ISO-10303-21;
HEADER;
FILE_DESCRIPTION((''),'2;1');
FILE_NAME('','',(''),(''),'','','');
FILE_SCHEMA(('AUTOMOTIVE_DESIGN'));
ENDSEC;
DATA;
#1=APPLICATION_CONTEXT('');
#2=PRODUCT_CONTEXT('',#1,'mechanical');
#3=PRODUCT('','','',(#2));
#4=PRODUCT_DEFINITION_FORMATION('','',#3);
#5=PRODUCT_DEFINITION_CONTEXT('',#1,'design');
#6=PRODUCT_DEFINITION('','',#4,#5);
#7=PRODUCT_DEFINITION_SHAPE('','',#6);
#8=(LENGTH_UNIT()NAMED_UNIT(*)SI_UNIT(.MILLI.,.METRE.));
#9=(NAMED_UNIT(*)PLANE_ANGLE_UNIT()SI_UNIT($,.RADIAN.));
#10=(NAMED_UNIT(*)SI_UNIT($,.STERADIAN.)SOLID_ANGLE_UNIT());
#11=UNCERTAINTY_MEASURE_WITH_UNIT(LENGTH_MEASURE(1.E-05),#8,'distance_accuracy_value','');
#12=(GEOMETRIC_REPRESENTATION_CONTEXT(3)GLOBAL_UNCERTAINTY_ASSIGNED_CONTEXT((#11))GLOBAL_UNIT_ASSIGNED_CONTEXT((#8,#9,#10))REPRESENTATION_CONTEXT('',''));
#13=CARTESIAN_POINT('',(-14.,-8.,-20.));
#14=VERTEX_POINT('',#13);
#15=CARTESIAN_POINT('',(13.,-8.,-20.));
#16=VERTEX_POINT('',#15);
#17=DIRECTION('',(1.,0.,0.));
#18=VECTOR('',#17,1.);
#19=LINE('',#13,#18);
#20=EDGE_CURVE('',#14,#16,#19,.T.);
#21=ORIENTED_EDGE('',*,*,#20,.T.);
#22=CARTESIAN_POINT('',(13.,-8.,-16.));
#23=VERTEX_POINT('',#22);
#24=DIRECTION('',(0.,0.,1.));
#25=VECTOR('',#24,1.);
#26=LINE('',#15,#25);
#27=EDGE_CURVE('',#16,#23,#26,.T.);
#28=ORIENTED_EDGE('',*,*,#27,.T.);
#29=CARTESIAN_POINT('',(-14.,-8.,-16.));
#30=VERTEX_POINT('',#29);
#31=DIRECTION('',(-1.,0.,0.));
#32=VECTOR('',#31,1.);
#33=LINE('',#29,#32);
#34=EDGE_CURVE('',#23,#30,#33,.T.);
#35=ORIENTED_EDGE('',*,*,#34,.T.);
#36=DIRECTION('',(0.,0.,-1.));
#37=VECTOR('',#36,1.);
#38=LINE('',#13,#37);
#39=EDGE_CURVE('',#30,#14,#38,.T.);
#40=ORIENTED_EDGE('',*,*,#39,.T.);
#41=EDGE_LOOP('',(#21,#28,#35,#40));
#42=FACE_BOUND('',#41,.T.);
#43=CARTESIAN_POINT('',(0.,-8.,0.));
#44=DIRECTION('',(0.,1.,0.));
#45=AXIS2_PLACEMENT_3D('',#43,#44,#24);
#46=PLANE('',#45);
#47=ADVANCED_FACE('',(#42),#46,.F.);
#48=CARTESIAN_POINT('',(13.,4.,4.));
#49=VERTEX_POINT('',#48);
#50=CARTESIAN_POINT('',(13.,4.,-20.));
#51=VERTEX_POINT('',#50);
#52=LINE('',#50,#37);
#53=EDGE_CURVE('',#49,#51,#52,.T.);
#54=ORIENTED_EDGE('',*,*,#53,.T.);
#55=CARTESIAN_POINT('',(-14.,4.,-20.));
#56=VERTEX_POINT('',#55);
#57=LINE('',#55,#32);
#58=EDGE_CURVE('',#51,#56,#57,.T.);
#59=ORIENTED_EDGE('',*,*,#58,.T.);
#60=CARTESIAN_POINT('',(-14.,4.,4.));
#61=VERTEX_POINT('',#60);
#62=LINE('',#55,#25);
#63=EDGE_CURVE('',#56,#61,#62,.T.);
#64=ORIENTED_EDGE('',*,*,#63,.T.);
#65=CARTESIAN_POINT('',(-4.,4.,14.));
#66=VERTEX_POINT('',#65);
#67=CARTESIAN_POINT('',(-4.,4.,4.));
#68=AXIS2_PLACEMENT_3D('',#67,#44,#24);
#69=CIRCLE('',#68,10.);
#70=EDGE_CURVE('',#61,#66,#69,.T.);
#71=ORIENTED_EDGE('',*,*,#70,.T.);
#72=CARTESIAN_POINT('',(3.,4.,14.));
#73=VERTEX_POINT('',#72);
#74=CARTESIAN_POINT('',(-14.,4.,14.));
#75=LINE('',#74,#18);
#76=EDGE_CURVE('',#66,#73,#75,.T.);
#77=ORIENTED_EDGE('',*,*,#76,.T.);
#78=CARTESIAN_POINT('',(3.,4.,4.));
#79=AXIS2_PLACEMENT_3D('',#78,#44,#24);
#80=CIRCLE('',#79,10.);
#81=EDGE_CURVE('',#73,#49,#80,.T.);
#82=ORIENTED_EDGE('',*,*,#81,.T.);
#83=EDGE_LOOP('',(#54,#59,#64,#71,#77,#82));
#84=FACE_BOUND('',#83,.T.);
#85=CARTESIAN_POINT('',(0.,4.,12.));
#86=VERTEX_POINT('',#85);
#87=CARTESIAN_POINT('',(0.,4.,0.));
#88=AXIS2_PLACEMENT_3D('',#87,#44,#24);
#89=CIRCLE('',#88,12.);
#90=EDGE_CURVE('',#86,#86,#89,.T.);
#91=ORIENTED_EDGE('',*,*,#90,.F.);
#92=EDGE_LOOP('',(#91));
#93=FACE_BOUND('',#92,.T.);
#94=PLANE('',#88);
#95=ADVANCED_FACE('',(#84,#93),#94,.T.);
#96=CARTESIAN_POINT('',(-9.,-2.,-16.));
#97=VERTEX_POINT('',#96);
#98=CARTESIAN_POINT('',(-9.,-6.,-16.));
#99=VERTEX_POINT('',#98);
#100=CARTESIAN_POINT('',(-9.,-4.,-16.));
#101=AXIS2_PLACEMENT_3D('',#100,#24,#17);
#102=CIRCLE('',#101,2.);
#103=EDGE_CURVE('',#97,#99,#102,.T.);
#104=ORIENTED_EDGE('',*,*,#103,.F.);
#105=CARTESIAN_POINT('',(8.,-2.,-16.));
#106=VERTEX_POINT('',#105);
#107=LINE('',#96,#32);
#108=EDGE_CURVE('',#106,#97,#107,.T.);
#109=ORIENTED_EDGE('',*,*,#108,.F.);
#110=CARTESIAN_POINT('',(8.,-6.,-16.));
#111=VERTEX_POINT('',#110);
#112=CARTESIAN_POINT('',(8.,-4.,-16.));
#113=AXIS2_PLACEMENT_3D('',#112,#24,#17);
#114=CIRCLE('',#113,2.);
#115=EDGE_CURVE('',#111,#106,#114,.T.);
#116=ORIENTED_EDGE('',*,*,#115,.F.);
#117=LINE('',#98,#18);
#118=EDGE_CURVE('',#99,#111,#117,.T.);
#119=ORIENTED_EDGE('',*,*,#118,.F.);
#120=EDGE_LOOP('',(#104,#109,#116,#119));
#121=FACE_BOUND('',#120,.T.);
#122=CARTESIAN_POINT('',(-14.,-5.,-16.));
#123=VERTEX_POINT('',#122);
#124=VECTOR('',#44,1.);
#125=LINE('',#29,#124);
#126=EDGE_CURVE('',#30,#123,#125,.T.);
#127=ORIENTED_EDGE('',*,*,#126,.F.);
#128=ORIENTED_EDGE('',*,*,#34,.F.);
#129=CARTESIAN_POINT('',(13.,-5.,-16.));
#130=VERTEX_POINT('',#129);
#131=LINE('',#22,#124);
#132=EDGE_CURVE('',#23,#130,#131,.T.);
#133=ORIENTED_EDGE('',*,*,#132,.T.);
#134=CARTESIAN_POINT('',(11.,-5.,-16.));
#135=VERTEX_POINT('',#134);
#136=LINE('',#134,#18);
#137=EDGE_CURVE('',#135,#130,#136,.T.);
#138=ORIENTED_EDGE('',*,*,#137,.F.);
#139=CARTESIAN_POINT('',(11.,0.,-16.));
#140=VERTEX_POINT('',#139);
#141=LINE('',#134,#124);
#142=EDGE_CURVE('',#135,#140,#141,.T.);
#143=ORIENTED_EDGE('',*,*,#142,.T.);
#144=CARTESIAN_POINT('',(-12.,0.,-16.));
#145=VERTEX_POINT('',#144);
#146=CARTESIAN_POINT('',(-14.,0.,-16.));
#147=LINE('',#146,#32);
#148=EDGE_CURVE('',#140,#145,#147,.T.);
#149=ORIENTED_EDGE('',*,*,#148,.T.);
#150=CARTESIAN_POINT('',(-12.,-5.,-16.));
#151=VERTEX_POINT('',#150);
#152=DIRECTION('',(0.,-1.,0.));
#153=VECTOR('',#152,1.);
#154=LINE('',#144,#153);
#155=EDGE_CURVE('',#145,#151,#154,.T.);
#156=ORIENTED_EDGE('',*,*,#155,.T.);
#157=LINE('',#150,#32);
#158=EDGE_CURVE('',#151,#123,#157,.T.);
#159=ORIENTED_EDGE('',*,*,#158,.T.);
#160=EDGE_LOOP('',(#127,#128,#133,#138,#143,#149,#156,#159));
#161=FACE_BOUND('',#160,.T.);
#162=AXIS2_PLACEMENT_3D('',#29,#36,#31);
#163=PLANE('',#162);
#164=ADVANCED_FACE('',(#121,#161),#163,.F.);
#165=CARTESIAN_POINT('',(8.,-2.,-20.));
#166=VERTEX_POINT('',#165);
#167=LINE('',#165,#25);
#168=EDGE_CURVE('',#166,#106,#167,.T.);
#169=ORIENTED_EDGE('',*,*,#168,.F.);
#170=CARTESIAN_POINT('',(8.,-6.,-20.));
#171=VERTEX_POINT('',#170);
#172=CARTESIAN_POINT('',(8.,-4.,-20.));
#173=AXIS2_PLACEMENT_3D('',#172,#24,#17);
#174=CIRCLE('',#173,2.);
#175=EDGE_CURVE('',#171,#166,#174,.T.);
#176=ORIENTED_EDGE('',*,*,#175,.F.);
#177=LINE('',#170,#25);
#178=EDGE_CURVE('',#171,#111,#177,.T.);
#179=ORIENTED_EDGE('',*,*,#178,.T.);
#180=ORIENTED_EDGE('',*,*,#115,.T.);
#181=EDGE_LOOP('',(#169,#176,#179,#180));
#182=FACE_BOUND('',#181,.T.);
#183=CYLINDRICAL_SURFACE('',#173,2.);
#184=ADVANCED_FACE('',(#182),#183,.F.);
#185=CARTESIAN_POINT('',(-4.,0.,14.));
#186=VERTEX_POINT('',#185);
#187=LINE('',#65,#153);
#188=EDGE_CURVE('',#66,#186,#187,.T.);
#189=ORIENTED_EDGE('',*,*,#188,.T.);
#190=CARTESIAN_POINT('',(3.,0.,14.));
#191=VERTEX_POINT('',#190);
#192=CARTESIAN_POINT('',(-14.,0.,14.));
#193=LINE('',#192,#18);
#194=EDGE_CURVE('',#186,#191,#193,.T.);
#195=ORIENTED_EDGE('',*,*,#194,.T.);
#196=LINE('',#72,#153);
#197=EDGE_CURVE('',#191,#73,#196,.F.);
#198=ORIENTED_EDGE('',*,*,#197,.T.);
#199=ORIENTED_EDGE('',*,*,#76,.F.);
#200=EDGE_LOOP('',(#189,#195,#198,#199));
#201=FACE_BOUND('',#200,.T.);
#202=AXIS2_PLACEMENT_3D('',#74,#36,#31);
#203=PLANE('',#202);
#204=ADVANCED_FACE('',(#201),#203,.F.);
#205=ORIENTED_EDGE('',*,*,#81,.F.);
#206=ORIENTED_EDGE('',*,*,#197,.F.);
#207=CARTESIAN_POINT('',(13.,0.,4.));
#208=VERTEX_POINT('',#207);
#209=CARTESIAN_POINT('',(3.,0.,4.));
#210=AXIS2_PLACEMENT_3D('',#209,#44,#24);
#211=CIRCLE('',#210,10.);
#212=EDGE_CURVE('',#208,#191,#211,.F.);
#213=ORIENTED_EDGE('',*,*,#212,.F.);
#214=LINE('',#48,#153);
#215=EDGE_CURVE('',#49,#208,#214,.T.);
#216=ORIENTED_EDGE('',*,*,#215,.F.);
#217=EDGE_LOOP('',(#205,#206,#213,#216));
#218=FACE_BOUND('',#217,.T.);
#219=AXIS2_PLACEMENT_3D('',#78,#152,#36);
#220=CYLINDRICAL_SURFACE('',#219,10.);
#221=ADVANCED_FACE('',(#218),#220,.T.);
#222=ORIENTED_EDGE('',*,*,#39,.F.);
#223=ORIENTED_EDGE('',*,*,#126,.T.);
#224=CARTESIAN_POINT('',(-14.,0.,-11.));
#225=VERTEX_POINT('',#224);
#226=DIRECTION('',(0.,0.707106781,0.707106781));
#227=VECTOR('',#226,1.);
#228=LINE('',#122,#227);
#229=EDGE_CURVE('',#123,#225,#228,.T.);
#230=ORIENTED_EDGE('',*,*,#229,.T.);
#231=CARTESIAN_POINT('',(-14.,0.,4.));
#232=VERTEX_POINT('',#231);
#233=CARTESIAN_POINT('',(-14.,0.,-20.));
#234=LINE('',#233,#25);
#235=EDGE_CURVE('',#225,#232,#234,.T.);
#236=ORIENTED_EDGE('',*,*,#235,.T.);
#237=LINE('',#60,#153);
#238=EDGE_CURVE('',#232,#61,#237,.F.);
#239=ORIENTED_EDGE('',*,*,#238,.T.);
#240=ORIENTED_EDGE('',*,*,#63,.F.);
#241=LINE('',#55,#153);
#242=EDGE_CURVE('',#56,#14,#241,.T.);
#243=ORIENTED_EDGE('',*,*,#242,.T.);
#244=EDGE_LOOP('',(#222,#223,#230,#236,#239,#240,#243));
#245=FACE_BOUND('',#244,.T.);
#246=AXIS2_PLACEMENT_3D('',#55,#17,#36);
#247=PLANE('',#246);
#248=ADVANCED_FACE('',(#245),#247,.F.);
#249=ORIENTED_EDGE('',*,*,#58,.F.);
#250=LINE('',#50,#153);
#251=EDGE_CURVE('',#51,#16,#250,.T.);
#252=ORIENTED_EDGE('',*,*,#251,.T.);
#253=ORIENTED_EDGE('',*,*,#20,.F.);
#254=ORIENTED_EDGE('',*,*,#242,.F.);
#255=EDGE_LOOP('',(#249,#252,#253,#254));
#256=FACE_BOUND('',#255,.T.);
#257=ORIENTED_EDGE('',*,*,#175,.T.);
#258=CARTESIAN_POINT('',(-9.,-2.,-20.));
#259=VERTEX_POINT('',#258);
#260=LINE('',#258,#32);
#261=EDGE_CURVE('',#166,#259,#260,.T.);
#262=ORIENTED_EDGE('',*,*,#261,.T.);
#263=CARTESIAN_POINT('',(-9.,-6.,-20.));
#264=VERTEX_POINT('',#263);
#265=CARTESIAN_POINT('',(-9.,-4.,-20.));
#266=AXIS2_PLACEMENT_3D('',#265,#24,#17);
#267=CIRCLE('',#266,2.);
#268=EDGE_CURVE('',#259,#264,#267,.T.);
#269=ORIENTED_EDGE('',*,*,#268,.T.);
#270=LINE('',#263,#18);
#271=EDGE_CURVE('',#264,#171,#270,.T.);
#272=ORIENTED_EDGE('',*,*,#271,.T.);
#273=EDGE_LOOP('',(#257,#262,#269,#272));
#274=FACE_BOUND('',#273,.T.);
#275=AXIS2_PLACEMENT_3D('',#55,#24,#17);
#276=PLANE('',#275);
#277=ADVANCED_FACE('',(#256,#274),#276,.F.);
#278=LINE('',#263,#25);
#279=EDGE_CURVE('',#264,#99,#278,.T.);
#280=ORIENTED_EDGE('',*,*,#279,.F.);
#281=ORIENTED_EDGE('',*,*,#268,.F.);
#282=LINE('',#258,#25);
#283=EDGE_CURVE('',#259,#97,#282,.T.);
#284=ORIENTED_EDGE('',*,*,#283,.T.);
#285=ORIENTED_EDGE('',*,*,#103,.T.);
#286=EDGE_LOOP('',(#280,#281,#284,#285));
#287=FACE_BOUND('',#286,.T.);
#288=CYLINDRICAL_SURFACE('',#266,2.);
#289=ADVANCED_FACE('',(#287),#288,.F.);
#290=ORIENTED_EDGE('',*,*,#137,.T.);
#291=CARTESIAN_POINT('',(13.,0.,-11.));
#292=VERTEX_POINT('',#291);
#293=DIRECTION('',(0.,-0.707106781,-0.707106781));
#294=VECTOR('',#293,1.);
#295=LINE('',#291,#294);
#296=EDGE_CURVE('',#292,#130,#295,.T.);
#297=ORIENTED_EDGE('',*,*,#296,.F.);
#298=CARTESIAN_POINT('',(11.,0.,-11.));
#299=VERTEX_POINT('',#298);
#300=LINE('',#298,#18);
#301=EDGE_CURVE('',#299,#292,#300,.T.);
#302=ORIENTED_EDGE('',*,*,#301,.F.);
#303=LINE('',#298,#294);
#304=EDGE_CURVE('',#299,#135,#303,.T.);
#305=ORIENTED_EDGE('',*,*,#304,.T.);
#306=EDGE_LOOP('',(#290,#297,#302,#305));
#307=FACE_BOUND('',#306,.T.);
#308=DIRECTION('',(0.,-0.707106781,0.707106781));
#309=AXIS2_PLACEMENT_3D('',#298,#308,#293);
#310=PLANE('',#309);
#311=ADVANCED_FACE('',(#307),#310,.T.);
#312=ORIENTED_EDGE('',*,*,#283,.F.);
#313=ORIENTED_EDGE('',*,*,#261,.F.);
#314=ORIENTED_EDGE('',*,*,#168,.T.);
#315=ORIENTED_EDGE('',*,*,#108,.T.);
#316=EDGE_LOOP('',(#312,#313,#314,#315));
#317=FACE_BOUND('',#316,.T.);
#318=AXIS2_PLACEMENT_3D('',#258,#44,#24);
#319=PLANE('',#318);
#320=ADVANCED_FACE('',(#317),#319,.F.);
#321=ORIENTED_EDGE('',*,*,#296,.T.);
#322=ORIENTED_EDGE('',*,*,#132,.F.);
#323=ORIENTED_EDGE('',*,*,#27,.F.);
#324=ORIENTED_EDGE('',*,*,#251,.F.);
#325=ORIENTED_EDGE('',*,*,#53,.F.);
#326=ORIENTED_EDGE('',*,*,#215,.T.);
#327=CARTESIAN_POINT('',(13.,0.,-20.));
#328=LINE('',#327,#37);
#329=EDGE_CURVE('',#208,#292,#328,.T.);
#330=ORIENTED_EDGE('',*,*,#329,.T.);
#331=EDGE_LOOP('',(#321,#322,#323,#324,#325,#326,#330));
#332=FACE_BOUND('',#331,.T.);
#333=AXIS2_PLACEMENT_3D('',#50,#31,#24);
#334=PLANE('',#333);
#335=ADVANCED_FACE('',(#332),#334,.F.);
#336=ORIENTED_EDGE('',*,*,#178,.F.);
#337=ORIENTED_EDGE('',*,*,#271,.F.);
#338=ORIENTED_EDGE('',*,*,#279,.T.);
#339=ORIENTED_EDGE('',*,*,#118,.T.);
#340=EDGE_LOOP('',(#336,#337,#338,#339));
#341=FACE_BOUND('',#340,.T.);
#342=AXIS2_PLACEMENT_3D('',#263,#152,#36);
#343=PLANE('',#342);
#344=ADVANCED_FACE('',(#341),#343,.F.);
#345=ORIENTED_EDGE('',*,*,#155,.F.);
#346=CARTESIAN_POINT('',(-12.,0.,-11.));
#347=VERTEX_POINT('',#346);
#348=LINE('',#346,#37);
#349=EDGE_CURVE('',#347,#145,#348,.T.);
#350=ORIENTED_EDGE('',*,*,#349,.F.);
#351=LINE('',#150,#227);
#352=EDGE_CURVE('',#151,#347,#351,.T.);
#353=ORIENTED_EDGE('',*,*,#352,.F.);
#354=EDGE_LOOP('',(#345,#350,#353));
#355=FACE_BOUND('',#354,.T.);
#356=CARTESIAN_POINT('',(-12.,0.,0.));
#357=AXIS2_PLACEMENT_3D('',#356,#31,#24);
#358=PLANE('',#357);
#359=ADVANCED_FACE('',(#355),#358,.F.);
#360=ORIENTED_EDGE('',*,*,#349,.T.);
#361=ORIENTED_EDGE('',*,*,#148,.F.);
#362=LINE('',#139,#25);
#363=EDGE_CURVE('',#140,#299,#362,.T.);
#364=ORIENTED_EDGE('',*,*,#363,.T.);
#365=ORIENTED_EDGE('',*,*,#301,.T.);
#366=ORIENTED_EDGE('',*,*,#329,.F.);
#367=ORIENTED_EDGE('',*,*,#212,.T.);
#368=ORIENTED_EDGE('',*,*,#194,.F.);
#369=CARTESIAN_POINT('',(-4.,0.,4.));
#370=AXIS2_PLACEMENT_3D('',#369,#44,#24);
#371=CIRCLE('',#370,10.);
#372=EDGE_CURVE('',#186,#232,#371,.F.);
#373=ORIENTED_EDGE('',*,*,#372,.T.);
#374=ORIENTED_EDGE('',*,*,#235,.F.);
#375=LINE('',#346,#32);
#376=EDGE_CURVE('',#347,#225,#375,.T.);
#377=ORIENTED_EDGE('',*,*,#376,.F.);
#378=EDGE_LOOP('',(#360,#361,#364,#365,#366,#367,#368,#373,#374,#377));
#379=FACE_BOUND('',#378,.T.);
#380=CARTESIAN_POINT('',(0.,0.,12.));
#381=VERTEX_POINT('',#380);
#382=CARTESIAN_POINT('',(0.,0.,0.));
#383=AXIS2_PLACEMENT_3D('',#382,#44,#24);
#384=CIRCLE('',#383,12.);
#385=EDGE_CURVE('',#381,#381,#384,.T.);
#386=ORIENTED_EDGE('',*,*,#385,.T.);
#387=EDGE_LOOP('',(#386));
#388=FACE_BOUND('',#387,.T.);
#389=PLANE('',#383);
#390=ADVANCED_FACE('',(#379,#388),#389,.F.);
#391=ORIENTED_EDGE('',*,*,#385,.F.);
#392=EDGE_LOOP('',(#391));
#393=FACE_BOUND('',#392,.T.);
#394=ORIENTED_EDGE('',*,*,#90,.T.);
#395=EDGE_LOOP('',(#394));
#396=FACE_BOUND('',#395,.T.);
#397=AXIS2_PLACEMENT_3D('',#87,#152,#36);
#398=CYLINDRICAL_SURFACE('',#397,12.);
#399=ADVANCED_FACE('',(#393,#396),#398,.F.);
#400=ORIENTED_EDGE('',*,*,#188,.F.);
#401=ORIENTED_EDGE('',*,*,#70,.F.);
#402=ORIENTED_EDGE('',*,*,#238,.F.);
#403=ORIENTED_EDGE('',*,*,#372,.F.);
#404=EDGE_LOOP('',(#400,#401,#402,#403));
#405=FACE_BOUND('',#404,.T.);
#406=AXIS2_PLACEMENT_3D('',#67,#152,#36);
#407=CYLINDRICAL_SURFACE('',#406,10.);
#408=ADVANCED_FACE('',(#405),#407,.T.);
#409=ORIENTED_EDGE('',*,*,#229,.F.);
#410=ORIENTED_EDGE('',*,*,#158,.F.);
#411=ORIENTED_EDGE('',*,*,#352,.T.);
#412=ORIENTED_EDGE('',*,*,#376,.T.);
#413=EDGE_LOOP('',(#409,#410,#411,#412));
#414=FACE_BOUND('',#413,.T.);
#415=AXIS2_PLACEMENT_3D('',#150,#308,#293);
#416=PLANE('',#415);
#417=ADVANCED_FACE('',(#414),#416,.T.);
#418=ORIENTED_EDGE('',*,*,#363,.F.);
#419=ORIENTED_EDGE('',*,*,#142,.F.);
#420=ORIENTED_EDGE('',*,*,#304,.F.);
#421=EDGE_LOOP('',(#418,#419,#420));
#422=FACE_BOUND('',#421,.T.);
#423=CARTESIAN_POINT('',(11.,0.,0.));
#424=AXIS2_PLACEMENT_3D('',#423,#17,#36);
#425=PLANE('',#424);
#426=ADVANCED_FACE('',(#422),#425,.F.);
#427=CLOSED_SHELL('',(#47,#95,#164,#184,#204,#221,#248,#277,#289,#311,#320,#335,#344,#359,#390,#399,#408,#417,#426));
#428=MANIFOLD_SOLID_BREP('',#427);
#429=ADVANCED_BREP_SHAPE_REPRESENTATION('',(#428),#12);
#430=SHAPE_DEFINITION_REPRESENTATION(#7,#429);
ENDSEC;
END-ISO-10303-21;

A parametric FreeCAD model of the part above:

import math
import FreeCAD as App
import Part
import Sketcher

V = App.Vector


def edges_at(feature, points):
    """Names of the edges that pass closest to the given points."""
    edges = feature.Shape.Edges
    near = lambda p: min(range(len(edges)), key=lambda i: edges[i].distToShape(Part.Vertex(*p))[0])
    return sorted({f"Edge{near(p) + 1}" for p in points})

doc = App.newDocument("Part")
body = doc.addObject("PartDesign::Body", "Body")

# Sketch on XZ plane
sketch1 = body.newObject("Sketcher::SketchObject", "Sketch")
sketch1.AttachmentSupport = (doc.getObject("XZ_Plane"), [""])
sketch1.MapMode = "FlatFace"
sketch1.addGeometry([
    Part.LineSegment(V(-14, -20, 0), V(-14, 14, 0)),  # 0
    Part.LineSegment(V(-14, 14, 0), V(13, 14, 0)),  # 1
    Part.LineSegment(V(13, 14, 0), V(13, -20, 0)),  # 2
    Part.LineSegment(V(13, -20, 0), V(-14, -20, 0)),  # 3
    Part.Circle(V(0, 0, 0), V(0, 0, 1), 12),  # 4
], False)
sketch1.addConstraint([
    Sketcher.Constraint("Coincident", 0, 2, 1, 1),
    Sketcher.Constraint("Coincident", 1, 2, 2, 1),
    Sketcher.Constraint("Coincident", 2, 2, 3, 1),
    Sketcher.Constraint("Coincident", 3, 2, 0, 1),
    Sketcher.Constraint("Vertical", 0),
    Sketcher.Constraint("Horizontal", 1),
    Sketcher.Constraint("Vertical", 2),
    Sketcher.Constraint("Horizontal", 3),
    Sketcher.Constraint("Coincident", 4, 3, -1, 1),
    Sketcher.Constraint("Diameter", 4, 24.0),
    Sketcher.Constraint("DistanceX", 1, 1, 1, 2, 27.0),
    Sketcher.Constraint("DistanceY", 0, 1, 0, 2, 34.0),
    Sketcher.Constraint("DistanceX", 0, 2, -1, 1, 14.0),
    Sketcher.Constraint("DistanceY", -1, 1, 0, 2, 14.0),
])
pad1 = body.newObject("PartDesign::Pad", "Pad")
pad1.Profile = sketch1
pad1.Length = 4
pad1.Reversed = True

# Sketch on XZ plane
sketch2 = body.newObject("Sketcher::SketchObject", "Sketch001")
sketch2.AttachmentSupport = (doc.getObject("XZ_Plane"), [""])
sketch2.MapMode = "FlatFace"
sketch2.addGeometry([
    Part.LineSegment(V(-14, -16, 0), V(-14, -20, 0)),
    Part.LineSegment(V(-14, -20, 0), V(13, -20, 0)),
    Part.LineSegment(V(13, -20, 0), V(13, -16, 0)),
    Part.LineSegment(V(13, -16, 0), V(-14, -16, 0)),
], False)
sketch2.addConstraint([
    Sketcher.Constraint("Coincident", 0, 2, 1, 1),
    Sketcher.Constraint("Coincident", 1, 2, 2, 1),
    Sketcher.Constraint("Coincident", 2, 2, 3, 1),
    Sketcher.Constraint("Coincident", 3, 2, 0, 1),
    Sketcher.Constraint("Vertical", 0),
    Sketcher.Constraint("Horizontal", 1),
    Sketcher.Constraint("Vertical", 2),
    Sketcher.Constraint("Horizontal", 3),
    Sketcher.Constraint("DistanceX", 1, 1, 1, 2, 27.0),
    Sketcher.Constraint("DistanceY", 0, 2, 0, 1, 4.0),
    Sketcher.Constraint("DistanceX", 0, 2, -1, 1, 14.0),
    Sketcher.Constraint("DistanceY", 0, 2, -1, 1, 20.0),
])
pad2 = body.newObject("PartDesign::Pad", "Pad001")
pad2.Profile = sketch2
pad2.Length = 8

# Sketch on YZ plane
sketch3 = body.newObject("Sketcher::SketchObject", "Sketch002")
sketch3.AttachmentSupport = (doc.getObject("YZ_Plane"), [""])
sketch3.MapMode = "FlatFace"
sketch3.AttachmentOffset = App.Placement(V(0, 0, -14), App.Rotation())
sketch3.addGeometry([
    Part.LineSegment(V(0, -16, 0), V(-5, -16, 0)),
    Part.LineSegment(V(-5, -16, 0), V(0, -11, 0)),
    Part.LineSegment(V(0, -11, 0), V(0, -16, 0)),
], False)
sketch3.addConstraint([
    Sketcher.Constraint("Coincident", 0, 2, 1, 1),
    Sketcher.Constraint("Coincident", 1, 2, 2, 1),
    Sketcher.Constraint("Coincident", 2, 2, 0, 1),
    Sketcher.Constraint("Horizontal", 0),
    Sketcher.Constraint("Vertical", 2),
    Sketcher.Constraint("PointOnObject", 1, 2, -2),
    Sketcher.Constraint("Equal", 0, 2),
    Sketcher.Constraint("DistanceX", 0, 2, 0, 1, 5.0),
    Sketcher.Constraint("DistanceY", 0, 2, -1, 1, 16.0),
])
pad3 = body.newObject("PartDesign::Pad", "Pad002")
pad3.Profile = sketch3
pad3.Length = 2

# Sketch on YZ plane
sketch4 = body.newObject("Sketcher::SketchObject", "Sketch003")
sketch4.AttachmentSupport = (doc.getObject("YZ_Plane"), [""])
sketch4.MapMode = "FlatFace"
sketch4.AttachmentOffset = App.Placement(V(0, 0, 13), App.Rotation())
sketch4.addGeometry([
    Part.LineSegment(V(0, -16, 0), V(0, -11, 0)),
    Part.LineSegment(V(0, -11, 0), V(-5, -16, 0)),
    Part.LineSegment(V(-5, -16, 0), V(0, -16, 0)),
], False)
sketch4.addConstraint([
    Sketcher.Constraint("Coincident", 0, 2, 1, 1),
    Sketcher.Constraint("Coincident", 1, 2, 2, 1),
    Sketcher.Constraint("Coincident", 2, 2, 0, 1),
    Sketcher.Constraint("Vertical", 0),
    Sketcher.Constraint("Horizontal", 2),
    Sketcher.Constraint("PointOnObject", 0, 2, -2),
    Sketcher.Constraint("Equal", 2, 0),
    Sketcher.Constraint("DistanceX", 2, 1, 2, 2, 5.0),
    Sketcher.Constraint("DistanceY", 0, 2, -1, 1, 11.0),
])
pad4 = body.newObject("PartDesign::Pad", "Pad003")
pad4.Profile = sketch4
pad4.Length = 2
pad4.Reversed = True
doc.recompute()

fillet = body.newObject("PartDesign::Fillet", "Fillet")
fillet.Base = (pad4, edges_at(pad4, [(-14, 2, 14), (13, 2, 14)]))
fillet.Radius = 10

# Sketch on XY plane
sketch5 = body.newObject("Sketcher::SketchObject", "Sketch004")
sketch5.AttachmentSupport = (doc.getObject("XY_Plane"), [""])
sketch5.MapMode = "FlatFace"
sketch5.AttachmentOffset = App.Placement(V(0, 0, -16), App.Rotation())
sketch5.addGeometry([
    Part.LineSegment(V(8, -2, 0), V(-9, -2, 0)),
    Part.ArcOfCircle(Part.Circle(V(-9, -4, 0), V(0, 0, 1), 2), math.radians(90), math.radians(270)),
    Part.LineSegment(V(-9, -6, 0), V(8, -6, 0)),
    Part.ArcOfCircle(Part.Circle(V(8, -4, 0), V(0, 0, 1), 2), math.radians(-90), math.radians(90)),
], False)
sketch5.addConstraint([
    Sketcher.Constraint("Tangent", 0, 2, 1, 1),
    Sketcher.Constraint("Tangent", 1, 2, 2, 1),
    Sketcher.Constraint("Tangent", 2, 2, 3, 1),
    Sketcher.Constraint("Tangent", 3, 2, 0, 1),
    Sketcher.Constraint("Horizontal", 0),
    Sketcher.Constraint("Horizontal", 2),
    Sketcher.Constraint("Radius", 1, 2.0),
    Sketcher.Constraint("DistanceX", 0, 2, 0, 1, 17.0),
    Sketcher.Constraint("DistanceX", 1, 3, -1, 1, 9.0),
    Sketcher.Constraint("DistanceY", 1, 3, -1, 1, 4.0),
])
pocket1 = body.newObject("PartDesign::Pocket", "Pocket")
pocket1.Profile = sketch5
pocket1.Type = "ThroughAll"

doc.recompute()
